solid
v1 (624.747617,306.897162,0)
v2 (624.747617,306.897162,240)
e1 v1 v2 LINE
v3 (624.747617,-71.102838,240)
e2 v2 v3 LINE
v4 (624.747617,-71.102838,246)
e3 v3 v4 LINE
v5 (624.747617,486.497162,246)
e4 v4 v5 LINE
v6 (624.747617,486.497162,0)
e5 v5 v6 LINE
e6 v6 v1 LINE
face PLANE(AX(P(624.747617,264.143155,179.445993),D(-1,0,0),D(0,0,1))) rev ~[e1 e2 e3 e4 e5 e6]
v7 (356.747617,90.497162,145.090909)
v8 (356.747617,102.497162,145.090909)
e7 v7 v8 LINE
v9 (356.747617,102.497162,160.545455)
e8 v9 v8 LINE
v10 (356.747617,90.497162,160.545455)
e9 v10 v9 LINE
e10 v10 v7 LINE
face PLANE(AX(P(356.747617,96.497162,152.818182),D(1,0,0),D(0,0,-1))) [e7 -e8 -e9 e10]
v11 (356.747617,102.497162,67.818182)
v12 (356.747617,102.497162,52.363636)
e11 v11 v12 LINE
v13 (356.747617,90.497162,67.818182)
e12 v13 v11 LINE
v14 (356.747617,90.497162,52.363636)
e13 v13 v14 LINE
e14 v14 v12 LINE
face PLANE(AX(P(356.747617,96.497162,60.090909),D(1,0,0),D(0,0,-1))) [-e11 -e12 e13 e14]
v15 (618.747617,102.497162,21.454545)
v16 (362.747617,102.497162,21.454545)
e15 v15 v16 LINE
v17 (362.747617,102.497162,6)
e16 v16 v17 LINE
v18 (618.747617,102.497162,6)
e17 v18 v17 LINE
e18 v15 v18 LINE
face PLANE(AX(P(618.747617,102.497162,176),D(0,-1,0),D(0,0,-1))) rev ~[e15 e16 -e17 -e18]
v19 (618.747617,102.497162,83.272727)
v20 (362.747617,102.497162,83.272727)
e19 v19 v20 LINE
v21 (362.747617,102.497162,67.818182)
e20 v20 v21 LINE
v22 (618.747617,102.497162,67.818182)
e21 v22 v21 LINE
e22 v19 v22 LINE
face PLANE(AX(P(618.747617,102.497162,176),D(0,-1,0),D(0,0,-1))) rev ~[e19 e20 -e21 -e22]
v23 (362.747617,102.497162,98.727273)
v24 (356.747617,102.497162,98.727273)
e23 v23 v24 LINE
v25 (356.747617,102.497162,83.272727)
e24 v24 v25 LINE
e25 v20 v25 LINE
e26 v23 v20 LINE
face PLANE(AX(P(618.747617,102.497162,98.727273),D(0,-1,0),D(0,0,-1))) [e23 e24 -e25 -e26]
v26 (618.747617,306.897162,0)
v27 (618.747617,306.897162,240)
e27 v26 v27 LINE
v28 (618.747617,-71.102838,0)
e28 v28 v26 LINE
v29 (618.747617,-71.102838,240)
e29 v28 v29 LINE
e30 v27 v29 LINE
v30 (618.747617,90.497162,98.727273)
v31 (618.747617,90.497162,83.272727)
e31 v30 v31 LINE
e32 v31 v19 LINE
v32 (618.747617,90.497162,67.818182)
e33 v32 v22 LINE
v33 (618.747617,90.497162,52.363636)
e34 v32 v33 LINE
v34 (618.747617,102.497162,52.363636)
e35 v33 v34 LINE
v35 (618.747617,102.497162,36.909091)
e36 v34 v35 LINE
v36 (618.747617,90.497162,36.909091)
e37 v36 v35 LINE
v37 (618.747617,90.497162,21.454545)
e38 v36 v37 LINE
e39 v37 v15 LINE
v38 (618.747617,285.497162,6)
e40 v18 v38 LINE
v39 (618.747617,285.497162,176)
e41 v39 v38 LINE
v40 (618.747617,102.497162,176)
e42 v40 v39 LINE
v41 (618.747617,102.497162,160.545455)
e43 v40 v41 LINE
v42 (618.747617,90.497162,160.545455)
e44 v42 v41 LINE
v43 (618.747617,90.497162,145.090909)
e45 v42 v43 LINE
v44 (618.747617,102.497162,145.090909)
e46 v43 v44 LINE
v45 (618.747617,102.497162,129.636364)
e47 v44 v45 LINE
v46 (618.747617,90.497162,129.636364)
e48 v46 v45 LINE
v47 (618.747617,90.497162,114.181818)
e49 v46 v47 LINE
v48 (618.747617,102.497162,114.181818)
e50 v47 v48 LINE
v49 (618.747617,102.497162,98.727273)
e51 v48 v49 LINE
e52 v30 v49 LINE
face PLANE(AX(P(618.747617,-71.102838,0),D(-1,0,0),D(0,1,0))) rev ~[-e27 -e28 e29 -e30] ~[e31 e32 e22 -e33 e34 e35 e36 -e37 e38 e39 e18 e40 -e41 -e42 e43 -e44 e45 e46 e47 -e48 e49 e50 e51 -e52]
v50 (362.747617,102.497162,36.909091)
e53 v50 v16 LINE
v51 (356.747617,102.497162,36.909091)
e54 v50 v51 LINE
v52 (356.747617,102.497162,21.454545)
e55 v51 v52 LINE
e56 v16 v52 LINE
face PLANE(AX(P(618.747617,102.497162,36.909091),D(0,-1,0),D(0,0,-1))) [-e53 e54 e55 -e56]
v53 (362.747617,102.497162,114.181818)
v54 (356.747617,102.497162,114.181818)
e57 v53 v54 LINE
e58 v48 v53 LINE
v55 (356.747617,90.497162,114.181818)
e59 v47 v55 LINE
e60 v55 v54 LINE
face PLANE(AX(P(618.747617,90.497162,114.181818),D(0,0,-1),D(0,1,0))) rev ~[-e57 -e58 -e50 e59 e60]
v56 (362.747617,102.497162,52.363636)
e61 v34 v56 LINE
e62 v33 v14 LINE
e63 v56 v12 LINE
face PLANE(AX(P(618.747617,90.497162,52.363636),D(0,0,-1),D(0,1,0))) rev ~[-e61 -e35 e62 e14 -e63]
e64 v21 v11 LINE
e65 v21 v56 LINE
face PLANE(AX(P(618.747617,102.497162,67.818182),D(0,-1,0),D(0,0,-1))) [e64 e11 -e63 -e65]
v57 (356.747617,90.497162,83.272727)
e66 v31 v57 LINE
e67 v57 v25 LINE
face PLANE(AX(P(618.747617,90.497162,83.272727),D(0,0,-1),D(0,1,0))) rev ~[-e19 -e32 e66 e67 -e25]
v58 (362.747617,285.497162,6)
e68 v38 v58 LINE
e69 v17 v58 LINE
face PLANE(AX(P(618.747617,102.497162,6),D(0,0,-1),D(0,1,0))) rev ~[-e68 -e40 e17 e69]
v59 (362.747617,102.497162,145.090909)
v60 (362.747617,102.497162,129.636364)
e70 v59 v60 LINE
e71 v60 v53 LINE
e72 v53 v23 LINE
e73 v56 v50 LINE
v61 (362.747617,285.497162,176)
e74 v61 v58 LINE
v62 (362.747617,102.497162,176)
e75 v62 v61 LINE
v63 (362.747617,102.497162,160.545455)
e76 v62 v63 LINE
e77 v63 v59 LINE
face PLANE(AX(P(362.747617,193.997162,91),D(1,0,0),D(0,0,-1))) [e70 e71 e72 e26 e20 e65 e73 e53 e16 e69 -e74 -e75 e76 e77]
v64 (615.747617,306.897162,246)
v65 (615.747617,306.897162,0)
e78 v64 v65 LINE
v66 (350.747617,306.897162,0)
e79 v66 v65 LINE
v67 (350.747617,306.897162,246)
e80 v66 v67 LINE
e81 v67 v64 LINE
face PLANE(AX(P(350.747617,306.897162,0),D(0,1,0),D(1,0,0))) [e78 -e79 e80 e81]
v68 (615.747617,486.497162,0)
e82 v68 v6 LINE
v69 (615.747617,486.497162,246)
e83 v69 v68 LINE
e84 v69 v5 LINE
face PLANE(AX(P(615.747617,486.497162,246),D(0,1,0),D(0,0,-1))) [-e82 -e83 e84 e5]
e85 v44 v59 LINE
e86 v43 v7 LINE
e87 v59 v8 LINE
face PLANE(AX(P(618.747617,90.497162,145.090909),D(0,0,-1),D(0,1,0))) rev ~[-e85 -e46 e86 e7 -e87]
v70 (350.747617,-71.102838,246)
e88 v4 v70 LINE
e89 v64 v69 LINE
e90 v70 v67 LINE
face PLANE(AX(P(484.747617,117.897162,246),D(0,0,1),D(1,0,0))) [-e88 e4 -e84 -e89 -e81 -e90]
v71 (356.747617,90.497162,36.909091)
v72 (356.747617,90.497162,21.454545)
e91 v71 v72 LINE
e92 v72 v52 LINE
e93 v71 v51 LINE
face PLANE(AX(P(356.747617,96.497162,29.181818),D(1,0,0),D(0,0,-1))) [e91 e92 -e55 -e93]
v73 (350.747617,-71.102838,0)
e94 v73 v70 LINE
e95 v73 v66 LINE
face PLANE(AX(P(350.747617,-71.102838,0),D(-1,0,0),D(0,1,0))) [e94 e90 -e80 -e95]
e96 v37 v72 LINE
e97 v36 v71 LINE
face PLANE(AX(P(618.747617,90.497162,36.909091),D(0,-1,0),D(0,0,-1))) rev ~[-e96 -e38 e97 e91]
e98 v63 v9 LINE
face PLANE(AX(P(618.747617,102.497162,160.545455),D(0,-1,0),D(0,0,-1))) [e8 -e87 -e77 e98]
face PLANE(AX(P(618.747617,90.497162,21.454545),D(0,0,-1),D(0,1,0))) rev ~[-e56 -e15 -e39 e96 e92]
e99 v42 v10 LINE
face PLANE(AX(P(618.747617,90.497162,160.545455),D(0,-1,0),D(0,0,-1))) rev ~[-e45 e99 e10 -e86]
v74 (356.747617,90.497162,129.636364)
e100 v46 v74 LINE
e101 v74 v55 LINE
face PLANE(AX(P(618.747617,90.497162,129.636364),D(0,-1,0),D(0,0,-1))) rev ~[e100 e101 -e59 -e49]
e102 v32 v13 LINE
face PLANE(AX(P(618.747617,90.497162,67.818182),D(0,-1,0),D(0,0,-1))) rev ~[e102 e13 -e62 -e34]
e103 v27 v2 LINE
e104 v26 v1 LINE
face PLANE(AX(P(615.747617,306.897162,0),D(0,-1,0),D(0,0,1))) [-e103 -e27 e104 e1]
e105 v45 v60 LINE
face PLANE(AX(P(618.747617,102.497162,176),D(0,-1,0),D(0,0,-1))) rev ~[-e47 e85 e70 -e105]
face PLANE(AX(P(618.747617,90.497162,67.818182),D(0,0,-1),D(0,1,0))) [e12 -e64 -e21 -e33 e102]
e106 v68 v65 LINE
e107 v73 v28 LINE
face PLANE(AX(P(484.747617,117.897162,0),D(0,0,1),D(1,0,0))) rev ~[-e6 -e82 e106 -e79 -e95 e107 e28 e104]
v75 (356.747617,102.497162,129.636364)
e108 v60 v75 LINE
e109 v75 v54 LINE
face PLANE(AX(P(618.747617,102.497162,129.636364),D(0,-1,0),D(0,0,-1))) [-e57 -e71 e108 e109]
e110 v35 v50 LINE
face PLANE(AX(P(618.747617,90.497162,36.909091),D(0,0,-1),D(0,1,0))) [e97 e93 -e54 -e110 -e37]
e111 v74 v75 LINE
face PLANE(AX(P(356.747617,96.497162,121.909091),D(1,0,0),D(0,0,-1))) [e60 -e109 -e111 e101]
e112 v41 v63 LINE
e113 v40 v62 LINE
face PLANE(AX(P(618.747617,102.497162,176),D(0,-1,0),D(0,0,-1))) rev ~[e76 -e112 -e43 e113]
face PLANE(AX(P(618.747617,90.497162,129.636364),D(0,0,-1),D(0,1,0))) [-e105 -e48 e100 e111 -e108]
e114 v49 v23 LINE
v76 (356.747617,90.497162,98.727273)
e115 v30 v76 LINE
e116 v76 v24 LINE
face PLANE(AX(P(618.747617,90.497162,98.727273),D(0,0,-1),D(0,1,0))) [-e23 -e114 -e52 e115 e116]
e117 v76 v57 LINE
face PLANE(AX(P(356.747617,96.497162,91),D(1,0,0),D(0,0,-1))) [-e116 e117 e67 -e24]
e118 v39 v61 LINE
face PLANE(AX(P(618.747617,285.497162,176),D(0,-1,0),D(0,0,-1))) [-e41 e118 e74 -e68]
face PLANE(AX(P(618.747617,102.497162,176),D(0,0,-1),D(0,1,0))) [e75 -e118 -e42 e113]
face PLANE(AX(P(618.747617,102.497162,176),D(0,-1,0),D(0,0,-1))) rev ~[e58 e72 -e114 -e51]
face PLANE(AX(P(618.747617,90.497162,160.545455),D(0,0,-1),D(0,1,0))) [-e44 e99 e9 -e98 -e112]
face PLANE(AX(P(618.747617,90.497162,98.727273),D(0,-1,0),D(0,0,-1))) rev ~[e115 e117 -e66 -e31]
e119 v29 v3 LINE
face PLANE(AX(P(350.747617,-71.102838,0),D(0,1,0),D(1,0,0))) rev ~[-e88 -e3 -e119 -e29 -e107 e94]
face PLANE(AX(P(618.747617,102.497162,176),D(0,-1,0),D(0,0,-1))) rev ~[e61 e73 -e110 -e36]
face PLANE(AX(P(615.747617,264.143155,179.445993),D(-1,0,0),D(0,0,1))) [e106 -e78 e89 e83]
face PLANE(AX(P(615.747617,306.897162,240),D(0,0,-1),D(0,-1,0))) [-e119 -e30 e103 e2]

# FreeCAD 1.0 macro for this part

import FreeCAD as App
import Part
import Sketcher
Q = App.Units.Quantity

doc = App.newDocument("Part")
body = doc.addObject("PartDesign::Body", "Body")

sketch1 = body.newObject("Sketcher::SketchObject", "Sketch")
sketch1.AttachmentSupport = (doc.getObject("XY_Plane"), [""])
sketch1.MapMode = "FlatFace"
sketch1.addGeometry([
    Part.LineSegment(App.Vector(350.747617, 306.897162, 0), App.Vector(350.747617, -71.102838, 0)),
    Part.LineSegment(App.Vector(350.747617, -71.102838, 0), App.Vector(618.747617, -71.102838, 0)),
    Part.LineSegment(App.Vector(618.747617, -71.102838, 0), App.Vector(618.747617, 306.897162, 0)),
    Part.LineSegment(App.Vector(618.747617, 306.897162, 0), App.Vector(350.747617, 306.897162, 0)),
], False)
sketch1.addConstraint([
    Sketcher.Constraint("Coincident", 0, 2, 1, 1),
    Sketcher.Constraint("Coincident", 1, 2, 2, 1),
    Sketcher.Constraint("Coincident", 2, 2, 3, 1),
    Sketcher.Constraint("Coincident", 3, 2, 0, 1),
    Sketcher.Constraint("Vertical", 0),
    Sketcher.Constraint("Horizontal", 1),
    Sketcher.Constraint("Vertical", 2),
    Sketcher.Constraint("Horizontal", 3),
    Sketcher.Constraint("DistanceX", 1, 1, 1, 2, Q("268 mm")),
    Sketcher.Constraint("DistanceY", 0, 2, 0, 1, Q("378 mm")),
    Sketcher.Constraint("DistanceX", -1, 1, 0, 2, Q("350.747617 mm")),
    Sketcher.Constraint("DistanceY", 0, 2, -1, 1, Q("71.102838 mm")),
])
pad1 = body.newObject("PartDesign::Pad", "Pad")
pad1.Profile = sketch1
pad1.Length = 246

sketch2 = body.newObject("Sketcher::SketchObject", "Sketch001")
sketch2.AttachmentSupport = (doc.getObject("YZ_Plane"), [""])
sketch2.MapMode = "FlatFace"
sketch2.AttachmentOffset = App.Placement(App.Vector(0, 0, 618.747617), App.Rotation())
sketch2.addGeometry([
    Part.LineSegment(App.Vector(285.497162, 176, 0), App.Vector(102.497162, 176, 0)),
    Part.LineSegment(App.Vector(102.497162, 176, 0), App.Vector(102.497162, 6, 0)),
    Part.LineSegment(App.Vector(102.497162, 6, 0), App.Vector(285.497162, 6, 0)),
    Part.LineSegment(App.Vector(285.497162, 6, 0), App.Vector(285.497162, 176, 0)),
], False)
sketch2.addConstraint([
    Sketcher.Constraint("Coincident", 0, 2, 1, 1),
    Sketcher.Constraint("Coincident", 1, 2, 2, 1),
    Sketcher.Constraint("Coincident", 2, 2, 3, 1),
    Sketcher.Constraint("Coincident", 3, 2, 0, 1),
    Sketcher.Constraint("Horizontal", 0),
    Sketcher.Constraint("Vertical", 1),
    Sketcher.Constraint("Horizontal", 2),
    Sketcher.Constraint("Vertical", 3),
    Sketcher.Constraint("DistanceX", 0, 2, 0, 1, Q("183 mm")),
    Sketcher.Constraint("DistanceY", 1, 2, 1, 1, Q("170 mm")),
    Sketcher.Constraint("DistanceY", -1, 1, 0, 2, Q("176 mm")),
    Sketcher.Constraint("DistanceX", -1, 1, 0, 2, Q("102.497162 mm")),
])
pocket1 = body.newObject("PartDesign::Pocket", "Pocket")
pocket1.Profile = sketch2
pocket1.Length = 256

sketch3 = body.newObject("Sketcher::SketchObject", "Sketch002")
sketch3.AttachmentSupport = (doc.getObject("YZ_Plane"), [""])
sketch3.MapMode = "FlatFace"
sketch3.AttachmentOffset = App.Placement(App.Vector(0, 0, 618.747617), App.Rotation())
sketch3.addGeometry([
    Part.LineSegment(App.Vector(-71.102838, 246, 0), App.Vector(-71.102838, 240, 0)),
    Part.LineSegment(App.Vector(-71.102838, 240, 0), App.Vector(306.897162, 240, 0)),
    Part.LineSegment(App.Vector(306.897162, 240, 0), App.Vector(306.897162, 0, 0)),
    Part.LineSegment(App.Vector(306.897162, 0, 0), App.Vector(486.497162, 0, 0)),
    Part.LineSegment(App.Vector(486.497162, 0, 0), App.Vector(486.497162, 246, 0)),
    Part.LineSegment(App.Vector(486.497162, 246, 0), App.Vector(-71.102838, 246, 0)),
], False)
sketch3.addConstraint([
    Sketcher.Constraint("Coincident", 0, 2, 1, 1),
    Sketcher.Constraint("Coincident", 1, 2, 2, 1),
    Sketcher.Constraint("Coincident", 2, 2, 3, 1),
    Sketcher.Constraint("Coincident", 3, 2, 4, 1),
    Sketcher.Constraint("Coincident", 4, 2, 5, 1),
    Sketcher.Constraint("Coincident", 5, 2, 0, 1),
    Sketcher.Constraint("Vertical", 0),
    Sketcher.Constraint("Horizontal", 1),
    Sketcher.Constraint("Vertical", 2),
    Sketcher.Constraint("Horizontal", 3),
    Sketcher.Constraint("Vertical", 4),
    Sketcher.Constraint("Horizontal", 5),
    Sketcher.Constraint("PointOnObject", 2, 2, -1),
    Sketcher.Constraint("DistanceX", 1, 1, 1, 2, Q("378 mm")),
    Sketcher.Constraint("DistanceY", 0, 2, 0, 1, Q("6 mm")),
    Sketcher.Constraint("DistanceY", 2, 2, 2, 1, Q("240 mm")),
    Sketcher.Constraint("DistanceX", 3, 1, 3, 2, Q("179.6 mm")),
    Sketcher.Constraint("DistanceX", 0, 2, -1, 1, Q("71.102838 mm")),
])
pad2 = body.newObject("PartDesign::Pad", "Pad001")
pad2.Profile = sketch3
pad2.Type = "TwoLengths"
pad2.Length = 6
pad2.Length2 = 3

sketch4 = body.newObject("Sketcher::SketchObject", "Sketch003")
sketch4.AttachmentSupport = (doc.getObject("YZ_Plane"), [""])
sketch4.MapMode = "FlatFace"
sketch4.AttachmentOffset = App.Placement(App.Vector(0, 0, 618.747617), App.Rotation())
sketch4.addGeometry([
    Part.LineSegment(App.Vector(102.497162, 160.545455, 0), App.Vector(90.497162, 160.545455, 0)),
    Part.LineSegment(App.Vector(90.497162, 160.545455, 0), App.Vector(90.497162, 145.090909, 0)),
    Part.LineSegment(App.Vector(90.497162, 145.090909, 0), App.Vector(102.497162, 145.090909, 0)),
    Part.LineSegment(App.Vector(102.497162, 145.090909, 0), App.Vector(102.497162, 160.545455, 0)),
], False)
sketch4.addConstraint([
    Sketcher.Constraint("Coincident", 0, 2, 1, 1),
    Sketcher.Constraint("Coincident", 1, 2, 2, 1),
    Sketcher.Constraint("Coincident", 2, 2, 3, 1),
    Sketcher.Constraint("Coincident", 3, 2, 0, 1),
    Sketcher.Constraint("Horizontal", 0),
    Sketcher.Constraint("Vertical", 1),
    Sketcher.Constraint("Horizontal", 2),
    Sketcher.Constraint("Vertical", 3),
    Sketcher.Constraint("DistanceX", 0, 2, 0, 1, Q("12 mm")),
    Sketcher.Constraint("DistanceY", 1, 2, 1, 1, Q("15.454545 mm")),
    Sketcher.Constraint("DistanceY", -1, 1, 1, 2, Q("145.090909 mm")),
    Sketcher.Constraint("DistanceX", -1, 1, 0, 2, Q("90.497162 mm")),
])
pocket2 = body.newObject("PartDesign::Pocket", "Pocket001")
pocket2.Profile = sketch4
pocket2.Length = 262
doc.recompute()

linearpattern = body.newObject("PartDesign::LinearPattern", "LinearPattern")
linearpattern.Originals = [pocket2]
linearpattern.Direction = (doc.getObject("Z_Axis"), [""])
linearpattern.Mode = "offset"
linearpattern.Offset = 30.909091
linearpattern.Occurrences = 5
linearpattern.Reversed = True
body.Tip = linearpattern

doc.recompute()
